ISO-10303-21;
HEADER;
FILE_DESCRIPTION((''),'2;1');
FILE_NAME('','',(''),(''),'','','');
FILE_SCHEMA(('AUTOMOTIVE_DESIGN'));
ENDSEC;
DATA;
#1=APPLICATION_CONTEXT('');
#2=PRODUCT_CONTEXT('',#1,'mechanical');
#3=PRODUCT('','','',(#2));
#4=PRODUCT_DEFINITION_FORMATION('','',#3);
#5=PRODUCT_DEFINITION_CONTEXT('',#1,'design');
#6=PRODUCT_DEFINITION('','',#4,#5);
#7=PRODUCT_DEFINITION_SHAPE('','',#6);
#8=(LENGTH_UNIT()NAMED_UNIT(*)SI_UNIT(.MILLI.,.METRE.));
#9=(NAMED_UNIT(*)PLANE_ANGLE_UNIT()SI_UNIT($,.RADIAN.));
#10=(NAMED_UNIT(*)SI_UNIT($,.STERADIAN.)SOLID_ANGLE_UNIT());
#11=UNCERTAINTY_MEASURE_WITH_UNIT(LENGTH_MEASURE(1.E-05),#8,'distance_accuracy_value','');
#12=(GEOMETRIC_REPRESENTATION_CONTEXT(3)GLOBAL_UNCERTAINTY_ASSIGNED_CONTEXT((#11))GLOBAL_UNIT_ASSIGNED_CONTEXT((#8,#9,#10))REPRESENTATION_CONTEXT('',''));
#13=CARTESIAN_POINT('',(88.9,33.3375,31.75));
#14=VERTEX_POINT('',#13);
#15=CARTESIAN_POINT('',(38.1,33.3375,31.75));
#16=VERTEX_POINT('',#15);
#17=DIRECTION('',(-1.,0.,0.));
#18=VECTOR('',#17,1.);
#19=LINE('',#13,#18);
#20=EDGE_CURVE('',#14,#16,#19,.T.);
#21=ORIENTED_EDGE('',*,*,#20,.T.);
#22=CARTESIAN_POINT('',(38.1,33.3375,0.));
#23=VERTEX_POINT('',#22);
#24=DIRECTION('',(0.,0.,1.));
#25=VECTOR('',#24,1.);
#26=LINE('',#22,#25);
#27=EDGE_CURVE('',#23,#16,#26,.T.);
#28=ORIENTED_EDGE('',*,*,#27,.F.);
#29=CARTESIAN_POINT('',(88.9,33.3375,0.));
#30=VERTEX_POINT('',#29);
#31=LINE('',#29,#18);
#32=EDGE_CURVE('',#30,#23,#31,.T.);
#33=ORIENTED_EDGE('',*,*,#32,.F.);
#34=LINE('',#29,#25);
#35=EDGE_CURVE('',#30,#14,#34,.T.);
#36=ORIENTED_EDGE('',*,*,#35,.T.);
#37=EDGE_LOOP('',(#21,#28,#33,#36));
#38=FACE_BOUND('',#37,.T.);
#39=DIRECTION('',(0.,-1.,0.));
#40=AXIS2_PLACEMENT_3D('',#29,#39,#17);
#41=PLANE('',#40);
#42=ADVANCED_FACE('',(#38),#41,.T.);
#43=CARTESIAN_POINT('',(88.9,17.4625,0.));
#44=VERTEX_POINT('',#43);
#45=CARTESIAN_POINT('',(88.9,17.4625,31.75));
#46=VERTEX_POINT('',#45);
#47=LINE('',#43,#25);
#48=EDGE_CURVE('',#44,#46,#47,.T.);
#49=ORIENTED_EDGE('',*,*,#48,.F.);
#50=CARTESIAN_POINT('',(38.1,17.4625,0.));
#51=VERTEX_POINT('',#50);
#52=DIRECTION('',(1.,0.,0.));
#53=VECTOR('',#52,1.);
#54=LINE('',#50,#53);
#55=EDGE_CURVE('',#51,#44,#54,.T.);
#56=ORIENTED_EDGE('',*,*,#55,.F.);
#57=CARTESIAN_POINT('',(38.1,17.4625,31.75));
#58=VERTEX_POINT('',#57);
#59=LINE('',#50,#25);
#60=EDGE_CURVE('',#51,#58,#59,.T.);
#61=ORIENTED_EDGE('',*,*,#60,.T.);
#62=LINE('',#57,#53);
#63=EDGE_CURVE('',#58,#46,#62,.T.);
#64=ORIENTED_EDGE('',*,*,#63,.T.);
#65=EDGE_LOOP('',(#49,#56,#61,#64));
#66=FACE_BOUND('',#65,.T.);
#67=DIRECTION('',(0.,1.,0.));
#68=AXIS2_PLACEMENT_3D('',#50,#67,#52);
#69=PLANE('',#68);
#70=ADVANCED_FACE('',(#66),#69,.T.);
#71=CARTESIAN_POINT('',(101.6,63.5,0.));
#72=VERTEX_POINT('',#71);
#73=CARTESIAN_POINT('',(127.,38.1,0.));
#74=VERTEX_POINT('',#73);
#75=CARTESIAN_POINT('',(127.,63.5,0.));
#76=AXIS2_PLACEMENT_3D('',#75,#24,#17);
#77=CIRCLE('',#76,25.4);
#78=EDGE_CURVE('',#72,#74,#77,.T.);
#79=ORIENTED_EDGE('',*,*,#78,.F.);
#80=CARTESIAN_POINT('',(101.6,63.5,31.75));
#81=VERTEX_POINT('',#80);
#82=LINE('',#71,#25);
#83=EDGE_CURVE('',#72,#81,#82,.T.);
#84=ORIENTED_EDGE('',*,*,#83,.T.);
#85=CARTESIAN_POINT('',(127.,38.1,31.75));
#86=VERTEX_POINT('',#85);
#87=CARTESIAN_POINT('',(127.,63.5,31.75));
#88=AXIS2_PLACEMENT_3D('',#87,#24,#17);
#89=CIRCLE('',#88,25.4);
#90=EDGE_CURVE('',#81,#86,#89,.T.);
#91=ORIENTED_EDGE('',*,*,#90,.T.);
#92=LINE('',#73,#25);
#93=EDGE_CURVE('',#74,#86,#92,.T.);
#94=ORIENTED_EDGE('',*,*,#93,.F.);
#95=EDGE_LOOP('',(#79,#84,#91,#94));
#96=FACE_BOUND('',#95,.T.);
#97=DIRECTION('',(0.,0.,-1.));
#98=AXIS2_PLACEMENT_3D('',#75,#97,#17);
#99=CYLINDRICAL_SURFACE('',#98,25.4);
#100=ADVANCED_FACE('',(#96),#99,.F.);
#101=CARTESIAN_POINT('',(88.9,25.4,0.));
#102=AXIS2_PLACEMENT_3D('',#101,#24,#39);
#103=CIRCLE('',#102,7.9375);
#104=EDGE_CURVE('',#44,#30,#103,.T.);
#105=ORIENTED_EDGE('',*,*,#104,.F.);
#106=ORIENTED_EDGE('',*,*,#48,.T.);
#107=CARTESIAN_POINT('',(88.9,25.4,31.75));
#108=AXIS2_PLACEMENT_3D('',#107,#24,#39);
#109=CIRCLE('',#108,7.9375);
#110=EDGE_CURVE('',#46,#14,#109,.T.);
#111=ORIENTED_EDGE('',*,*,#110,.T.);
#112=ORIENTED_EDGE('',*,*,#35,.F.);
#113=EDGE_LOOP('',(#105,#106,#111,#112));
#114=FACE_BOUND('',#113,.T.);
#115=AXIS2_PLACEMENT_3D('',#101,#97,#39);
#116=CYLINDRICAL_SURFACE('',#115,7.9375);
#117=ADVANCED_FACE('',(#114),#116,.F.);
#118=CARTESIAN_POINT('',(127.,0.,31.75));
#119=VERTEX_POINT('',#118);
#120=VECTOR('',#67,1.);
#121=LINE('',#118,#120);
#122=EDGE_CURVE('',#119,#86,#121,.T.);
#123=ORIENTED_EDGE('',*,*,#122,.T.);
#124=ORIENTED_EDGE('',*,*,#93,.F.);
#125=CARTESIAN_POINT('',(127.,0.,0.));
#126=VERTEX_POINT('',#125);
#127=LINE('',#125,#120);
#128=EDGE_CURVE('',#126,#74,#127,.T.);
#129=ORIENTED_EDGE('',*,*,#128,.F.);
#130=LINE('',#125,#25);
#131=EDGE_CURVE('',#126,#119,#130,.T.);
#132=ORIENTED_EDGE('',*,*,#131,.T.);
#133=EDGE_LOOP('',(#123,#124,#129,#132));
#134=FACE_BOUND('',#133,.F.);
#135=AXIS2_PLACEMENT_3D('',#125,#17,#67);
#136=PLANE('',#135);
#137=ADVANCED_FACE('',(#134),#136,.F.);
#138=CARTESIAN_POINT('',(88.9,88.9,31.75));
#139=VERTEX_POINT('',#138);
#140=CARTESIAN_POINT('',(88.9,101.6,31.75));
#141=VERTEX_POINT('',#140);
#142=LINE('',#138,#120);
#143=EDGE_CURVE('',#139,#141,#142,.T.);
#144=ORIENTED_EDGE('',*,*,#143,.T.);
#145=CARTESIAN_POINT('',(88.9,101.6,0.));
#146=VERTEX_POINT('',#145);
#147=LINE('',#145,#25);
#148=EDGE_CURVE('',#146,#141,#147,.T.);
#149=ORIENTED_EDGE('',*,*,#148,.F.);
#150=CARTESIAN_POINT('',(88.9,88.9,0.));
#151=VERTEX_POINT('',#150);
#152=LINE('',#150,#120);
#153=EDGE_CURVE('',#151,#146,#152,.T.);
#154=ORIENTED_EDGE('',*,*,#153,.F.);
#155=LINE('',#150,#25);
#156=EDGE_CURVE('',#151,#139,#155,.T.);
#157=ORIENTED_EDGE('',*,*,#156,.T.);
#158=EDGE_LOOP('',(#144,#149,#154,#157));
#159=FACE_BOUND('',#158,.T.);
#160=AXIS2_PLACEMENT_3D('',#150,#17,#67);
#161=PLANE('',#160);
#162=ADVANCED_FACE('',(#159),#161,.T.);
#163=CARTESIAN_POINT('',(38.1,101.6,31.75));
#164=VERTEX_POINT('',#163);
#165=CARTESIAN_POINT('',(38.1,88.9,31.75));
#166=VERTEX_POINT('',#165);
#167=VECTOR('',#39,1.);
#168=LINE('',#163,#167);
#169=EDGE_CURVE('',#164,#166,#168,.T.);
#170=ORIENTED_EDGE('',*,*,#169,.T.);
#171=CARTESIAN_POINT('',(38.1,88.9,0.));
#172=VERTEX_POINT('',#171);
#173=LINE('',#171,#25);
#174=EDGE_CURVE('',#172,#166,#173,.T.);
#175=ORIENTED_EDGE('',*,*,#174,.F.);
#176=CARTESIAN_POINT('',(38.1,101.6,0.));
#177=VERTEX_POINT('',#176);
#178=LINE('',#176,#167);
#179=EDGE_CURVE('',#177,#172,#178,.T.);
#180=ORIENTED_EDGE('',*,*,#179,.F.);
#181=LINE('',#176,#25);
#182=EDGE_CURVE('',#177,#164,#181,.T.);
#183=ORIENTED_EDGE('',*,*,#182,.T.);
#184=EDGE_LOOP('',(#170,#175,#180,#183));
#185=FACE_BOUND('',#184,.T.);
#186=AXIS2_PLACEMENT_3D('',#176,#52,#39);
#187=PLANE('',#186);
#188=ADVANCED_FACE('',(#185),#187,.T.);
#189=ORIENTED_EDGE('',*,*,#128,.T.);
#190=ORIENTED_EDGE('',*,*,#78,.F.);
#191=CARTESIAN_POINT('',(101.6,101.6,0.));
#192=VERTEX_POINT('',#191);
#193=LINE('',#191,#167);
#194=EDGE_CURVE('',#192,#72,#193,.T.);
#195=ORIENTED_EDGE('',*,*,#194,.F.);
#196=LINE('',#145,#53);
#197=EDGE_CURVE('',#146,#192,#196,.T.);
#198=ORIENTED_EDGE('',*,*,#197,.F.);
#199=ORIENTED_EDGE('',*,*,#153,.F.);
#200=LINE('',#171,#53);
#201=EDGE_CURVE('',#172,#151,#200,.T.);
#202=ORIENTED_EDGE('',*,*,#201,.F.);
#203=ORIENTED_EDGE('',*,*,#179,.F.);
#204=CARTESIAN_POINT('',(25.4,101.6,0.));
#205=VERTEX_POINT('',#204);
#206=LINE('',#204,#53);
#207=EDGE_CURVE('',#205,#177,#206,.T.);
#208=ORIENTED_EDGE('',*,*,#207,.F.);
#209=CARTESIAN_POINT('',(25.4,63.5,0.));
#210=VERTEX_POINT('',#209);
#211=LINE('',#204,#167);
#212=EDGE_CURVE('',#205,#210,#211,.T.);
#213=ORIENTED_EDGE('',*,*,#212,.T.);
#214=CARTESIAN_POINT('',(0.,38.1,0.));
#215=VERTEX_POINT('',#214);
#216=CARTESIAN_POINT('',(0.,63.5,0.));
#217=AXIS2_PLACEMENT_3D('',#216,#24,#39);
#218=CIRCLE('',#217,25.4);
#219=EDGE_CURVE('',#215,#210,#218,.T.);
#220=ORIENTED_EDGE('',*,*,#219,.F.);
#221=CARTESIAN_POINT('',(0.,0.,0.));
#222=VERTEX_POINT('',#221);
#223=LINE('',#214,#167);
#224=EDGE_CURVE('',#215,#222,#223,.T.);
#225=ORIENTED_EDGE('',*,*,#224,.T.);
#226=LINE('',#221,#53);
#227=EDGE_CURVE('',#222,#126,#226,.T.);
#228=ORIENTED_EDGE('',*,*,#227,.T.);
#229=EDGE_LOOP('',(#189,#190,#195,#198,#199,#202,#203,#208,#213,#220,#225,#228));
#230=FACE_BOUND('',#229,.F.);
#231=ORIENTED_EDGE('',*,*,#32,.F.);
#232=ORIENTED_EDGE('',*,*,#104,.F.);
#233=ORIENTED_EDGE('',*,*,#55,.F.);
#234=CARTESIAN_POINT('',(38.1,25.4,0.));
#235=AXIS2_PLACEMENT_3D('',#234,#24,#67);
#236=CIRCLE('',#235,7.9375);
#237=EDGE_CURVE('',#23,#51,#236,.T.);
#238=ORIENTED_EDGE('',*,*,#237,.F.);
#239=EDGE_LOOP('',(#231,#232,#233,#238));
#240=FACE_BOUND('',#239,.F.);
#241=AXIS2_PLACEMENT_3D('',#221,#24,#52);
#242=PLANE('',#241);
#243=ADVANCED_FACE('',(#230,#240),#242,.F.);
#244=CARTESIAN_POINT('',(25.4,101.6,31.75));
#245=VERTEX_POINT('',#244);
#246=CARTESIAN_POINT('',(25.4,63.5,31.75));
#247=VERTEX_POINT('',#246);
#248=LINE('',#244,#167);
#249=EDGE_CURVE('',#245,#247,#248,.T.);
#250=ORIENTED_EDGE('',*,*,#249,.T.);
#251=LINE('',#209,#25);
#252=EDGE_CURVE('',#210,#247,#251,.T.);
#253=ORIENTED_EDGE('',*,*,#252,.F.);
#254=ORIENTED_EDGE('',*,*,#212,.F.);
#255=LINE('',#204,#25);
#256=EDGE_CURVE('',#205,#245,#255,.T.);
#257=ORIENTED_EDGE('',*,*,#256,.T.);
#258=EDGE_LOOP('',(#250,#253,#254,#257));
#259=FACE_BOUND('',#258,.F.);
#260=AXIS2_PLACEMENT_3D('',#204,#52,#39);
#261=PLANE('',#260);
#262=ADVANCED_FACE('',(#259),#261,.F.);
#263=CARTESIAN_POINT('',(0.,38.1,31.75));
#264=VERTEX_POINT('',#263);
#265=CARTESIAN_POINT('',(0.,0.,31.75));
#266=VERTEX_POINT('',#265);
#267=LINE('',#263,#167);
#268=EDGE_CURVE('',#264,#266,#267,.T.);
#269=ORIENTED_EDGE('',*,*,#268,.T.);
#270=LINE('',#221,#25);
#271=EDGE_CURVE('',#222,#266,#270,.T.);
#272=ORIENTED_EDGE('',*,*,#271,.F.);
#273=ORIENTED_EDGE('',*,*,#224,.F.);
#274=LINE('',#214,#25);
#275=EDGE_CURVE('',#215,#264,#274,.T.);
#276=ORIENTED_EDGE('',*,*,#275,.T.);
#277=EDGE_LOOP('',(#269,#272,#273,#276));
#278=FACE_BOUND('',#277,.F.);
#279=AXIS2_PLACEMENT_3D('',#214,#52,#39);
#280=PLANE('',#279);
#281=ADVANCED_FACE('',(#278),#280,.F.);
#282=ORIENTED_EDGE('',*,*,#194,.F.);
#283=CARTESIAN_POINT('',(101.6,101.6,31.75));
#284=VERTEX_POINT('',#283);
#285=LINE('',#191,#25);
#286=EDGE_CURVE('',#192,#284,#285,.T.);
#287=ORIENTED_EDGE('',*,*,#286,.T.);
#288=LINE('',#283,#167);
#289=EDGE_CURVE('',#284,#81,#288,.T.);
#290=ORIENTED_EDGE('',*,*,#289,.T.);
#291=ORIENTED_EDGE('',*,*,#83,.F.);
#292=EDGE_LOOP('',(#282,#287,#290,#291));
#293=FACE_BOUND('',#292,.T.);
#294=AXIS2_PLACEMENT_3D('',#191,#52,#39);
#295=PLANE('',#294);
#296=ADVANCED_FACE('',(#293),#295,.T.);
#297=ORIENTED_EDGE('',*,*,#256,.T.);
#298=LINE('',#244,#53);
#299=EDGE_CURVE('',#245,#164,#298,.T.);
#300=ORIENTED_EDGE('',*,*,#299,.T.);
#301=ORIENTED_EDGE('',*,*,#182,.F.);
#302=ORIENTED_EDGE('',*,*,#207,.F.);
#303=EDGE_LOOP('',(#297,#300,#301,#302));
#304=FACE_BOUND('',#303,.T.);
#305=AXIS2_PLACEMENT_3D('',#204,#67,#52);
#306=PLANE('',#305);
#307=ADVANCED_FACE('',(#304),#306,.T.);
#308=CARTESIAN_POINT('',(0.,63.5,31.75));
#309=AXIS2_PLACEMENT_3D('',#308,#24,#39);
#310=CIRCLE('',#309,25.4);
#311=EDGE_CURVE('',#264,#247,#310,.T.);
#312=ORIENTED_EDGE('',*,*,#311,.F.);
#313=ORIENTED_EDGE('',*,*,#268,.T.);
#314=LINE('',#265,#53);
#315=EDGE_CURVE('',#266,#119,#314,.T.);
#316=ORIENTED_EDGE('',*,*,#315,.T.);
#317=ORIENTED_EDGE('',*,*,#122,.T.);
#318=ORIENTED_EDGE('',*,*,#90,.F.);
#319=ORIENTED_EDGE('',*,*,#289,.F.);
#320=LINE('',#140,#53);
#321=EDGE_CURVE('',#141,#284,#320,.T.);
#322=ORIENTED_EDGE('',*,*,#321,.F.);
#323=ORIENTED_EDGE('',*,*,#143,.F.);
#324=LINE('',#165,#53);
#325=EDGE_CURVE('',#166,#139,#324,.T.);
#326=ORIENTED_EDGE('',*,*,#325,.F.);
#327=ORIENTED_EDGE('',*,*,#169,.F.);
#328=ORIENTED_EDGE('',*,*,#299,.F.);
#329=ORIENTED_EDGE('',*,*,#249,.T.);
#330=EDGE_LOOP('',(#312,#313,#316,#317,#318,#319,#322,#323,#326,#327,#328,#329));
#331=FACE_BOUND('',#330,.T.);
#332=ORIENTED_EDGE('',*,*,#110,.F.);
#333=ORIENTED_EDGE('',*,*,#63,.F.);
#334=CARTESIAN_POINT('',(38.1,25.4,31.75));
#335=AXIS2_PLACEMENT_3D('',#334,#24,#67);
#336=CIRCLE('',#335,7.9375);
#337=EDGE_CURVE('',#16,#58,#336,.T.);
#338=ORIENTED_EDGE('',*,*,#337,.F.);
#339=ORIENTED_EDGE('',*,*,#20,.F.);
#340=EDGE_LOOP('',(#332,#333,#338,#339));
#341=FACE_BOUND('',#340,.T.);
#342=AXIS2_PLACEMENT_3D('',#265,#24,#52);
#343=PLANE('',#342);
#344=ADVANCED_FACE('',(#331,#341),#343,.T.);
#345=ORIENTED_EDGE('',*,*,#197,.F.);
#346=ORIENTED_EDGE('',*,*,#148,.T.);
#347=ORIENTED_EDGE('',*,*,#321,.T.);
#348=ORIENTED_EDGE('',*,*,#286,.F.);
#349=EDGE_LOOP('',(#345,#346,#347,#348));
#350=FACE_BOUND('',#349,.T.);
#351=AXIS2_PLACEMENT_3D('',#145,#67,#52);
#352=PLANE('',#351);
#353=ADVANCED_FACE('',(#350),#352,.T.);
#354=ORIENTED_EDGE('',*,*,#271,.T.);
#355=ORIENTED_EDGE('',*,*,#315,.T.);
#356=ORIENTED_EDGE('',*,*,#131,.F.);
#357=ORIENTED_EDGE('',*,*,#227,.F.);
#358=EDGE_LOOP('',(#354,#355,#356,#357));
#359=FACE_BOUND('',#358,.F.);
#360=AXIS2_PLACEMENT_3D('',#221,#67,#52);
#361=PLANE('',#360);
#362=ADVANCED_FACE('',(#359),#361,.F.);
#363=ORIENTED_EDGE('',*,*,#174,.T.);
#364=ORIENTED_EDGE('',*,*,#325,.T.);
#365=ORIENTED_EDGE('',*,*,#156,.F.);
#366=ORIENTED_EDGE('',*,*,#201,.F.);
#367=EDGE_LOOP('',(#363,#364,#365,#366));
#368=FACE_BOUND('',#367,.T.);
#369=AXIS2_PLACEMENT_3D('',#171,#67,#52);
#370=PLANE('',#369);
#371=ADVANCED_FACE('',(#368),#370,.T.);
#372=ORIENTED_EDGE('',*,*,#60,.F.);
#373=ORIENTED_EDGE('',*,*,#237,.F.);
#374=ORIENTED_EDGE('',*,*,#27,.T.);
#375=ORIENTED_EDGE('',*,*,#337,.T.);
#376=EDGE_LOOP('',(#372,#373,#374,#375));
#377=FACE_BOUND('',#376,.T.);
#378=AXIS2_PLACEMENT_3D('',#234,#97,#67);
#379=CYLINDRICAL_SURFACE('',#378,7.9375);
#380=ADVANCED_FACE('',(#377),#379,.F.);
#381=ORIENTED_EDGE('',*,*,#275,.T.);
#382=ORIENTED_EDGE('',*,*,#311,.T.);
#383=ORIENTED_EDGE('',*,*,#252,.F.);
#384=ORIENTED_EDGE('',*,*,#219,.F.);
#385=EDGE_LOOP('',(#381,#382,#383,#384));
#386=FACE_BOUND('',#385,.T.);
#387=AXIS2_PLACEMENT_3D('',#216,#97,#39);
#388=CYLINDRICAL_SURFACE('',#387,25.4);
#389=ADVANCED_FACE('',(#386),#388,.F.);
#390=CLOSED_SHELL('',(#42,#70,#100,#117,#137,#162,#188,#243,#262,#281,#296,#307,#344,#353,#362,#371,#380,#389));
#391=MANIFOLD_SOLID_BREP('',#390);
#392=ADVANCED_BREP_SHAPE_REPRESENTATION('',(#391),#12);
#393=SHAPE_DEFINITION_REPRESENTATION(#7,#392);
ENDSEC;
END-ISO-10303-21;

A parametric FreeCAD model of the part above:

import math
import FreeCAD as App
import Part
import Sketcher
from FreeCAD import Vector
Q = App.Units.Quantity

doc = App.newDocument("Part")
body = doc.addObject("PartDesign::Body", "Body")

sketch1 = body.newObject("Sketcher::SketchObject", "Sketch")
sketch1.AttachmentSupport = (doc.getObject("XY_Plane"), [""])
sketch1.MapMode = "FlatFace"
sketch1.addGeometry([
    Part.ArcOfCircle(Part.Circle(Vector(0, 64, 0), Vector(0, 0, 1), 25), math.radians(-90), math.radians(0)),
    Part.LineSegment(Vector(0, 38, 0), Vector(0, 0, 0)),
    Part.LineSegment(Vector(0, 0, 0), Vector(127, 0, 0)),
    Part.LineSegment(Vector(127, 0, 0), Vector(127, 38, 0)),
    Part.ArcOfCircle(Part.Circle(Vector(127, 64, 0), Vector(0, 0, 1), 25), math.radians(180), math.radians(270)),
    Part.LineSegment(Vector(102, 64, 0), Vector(102, 102, 0)),
    Part.LineSegment(Vector(102, 102, 0), Vector(89, 102, 0)),
    Part.LineSegment(Vector(89, 102, 0), Vector(89, 89, 0)),
    Part.LineSegment(Vector(89, 89, 0), Vector(38, 89, 0)),
    Part.LineSegment(Vector(38, 89, 0), Vector(38, 102, 0)),
    Part.LineSegment(Vector(38, 102, 0), Vector(25, 102, 0)),
    Part.LineSegment(Vector(25, 102, 0), Vector(25, 64, 0)),
    Part.ArcOfCircle(Part.Circle(Vector(38, 25, 0), Vector(0, 0, 1), 8), math.radians(90), math.radians(270)),
    Part.LineSegment(Vector(38, 33, 0), Vector(89, 33, 0)),
    Part.ArcOfCircle(Part.Circle(Vector(89, 25, 0), Vector(0, 0, 1), 8), math.radians(-90), math.radians(90)),
    Part.LineSegment(Vector(89, 17, 0), Vector(38, 17, 0)),
], False)
sketch1.addConstraint([
    Sketcher.Constraint("Coincident", 0, 1, 1, 1),
    Sketcher.Constraint("Coincident", 1, 2, 2, 1),
    Sketcher.Constraint("Coincident", 2, 2, 3, 1),
    Sketcher.Constraint("Coincident", 3, 2, 4, 2),
    Sketcher.Constraint("Tangent", 4, 1, 5, 1),
    Sketcher.Constraint("Coincident", 5, 2, 6, 1),
    Sketcher.Constraint("Coincident", 6, 2, 7, 1),
    Sketcher.Constraint("Coincident", 7, 2, 8, 1),
    Sketcher.Constraint("Coincident", 8, 2, 9, 1),
    Sketcher.Constraint("Coincident", 9, 2, 10, 1),
    Sketcher.Constraint("Coincident", 10, 2, 11, 1),
    Sketcher.Constraint("Tangent", 11, 2, 0, 2),
    Sketcher.Constraint("Tangent", 12, 1, 13, 1),
    Sketcher.Constraint("Tangent", 13, 2, 14, 2),
    Sketcher.Constraint("Tangent", 14, 1, 15, 1),
    Sketcher.Constraint("Tangent", 15, 2, 12, 2),
    Sketcher.Constraint("Vertical", 1),
    Sketcher.Constraint("Horizontal", 2),
    Sketcher.Constraint("Vertical", 3),
    Sketcher.Constraint("Vertical", 5),
    Sketcher.Constraint("Horizontal", 6),
    Sketcher.Constraint("Vertical", 7),
    Sketcher.Constraint("Horizontal", 8),
    Sketcher.Constraint("Vertical", 9),
    Sketcher.Constraint("Horizontal", 10),
    Sketcher.Constraint("Vertical", 11),
    Sketcher.Constraint("Horizontal", 13),
    Sketcher.Constraint("Horizontal", 15),
    Sketcher.Constraint("Coincident", 1, 2, -1, 1),
    Sketcher.Constraint("Equal", 0, 4),
    Sketcher.Constraint("PointOnObject", 0, 3, -2),
    Sketcher.Constraint("Horizontal", 0, 3, 4, 3),
    Sketcher.Constraint("Horizontal", 6, 2, 9, 2),
    Sketcher.Constraint("Vertical", 4, 3, 2, 2),
    Sketcher.Constraint("Vertical", 14, 3, 6, 2),
    Sketcher.Constraint("Vertical", 12, 3, 8, 2),
    Sketcher.Constraint("Equal", 6, 10),
    Sketcher.Constraint("Equal", 3, 5),
    Sketcher.Constraint("Equal", 10, 7),
    Sketcher.Constraint("Radius", 0, Q("1 in")),
    Sketcher.Constraint("DistanceX", 2, 1, 2, 2, Q("5 in")),
    Sketcher.Constraint("DistanceX", 8, 2, 8, 1, Q("2 in")),
    Sketcher.Constraint("DistanceY", 1, 2, 1, 1, Q("1.5 in")),
    Sketcher.Constraint("DistanceY", -1, 1, 12, 3, Q("1 in")),
    Sketcher.Constraint("Radius", 12, Q("0.3125 in")),
])
pad1 = body.newObject("PartDesign::Pad", "Pad")
pad1.Profile = sketch1
pad1.Length = Q("1.25 in")

doc.recompute()
